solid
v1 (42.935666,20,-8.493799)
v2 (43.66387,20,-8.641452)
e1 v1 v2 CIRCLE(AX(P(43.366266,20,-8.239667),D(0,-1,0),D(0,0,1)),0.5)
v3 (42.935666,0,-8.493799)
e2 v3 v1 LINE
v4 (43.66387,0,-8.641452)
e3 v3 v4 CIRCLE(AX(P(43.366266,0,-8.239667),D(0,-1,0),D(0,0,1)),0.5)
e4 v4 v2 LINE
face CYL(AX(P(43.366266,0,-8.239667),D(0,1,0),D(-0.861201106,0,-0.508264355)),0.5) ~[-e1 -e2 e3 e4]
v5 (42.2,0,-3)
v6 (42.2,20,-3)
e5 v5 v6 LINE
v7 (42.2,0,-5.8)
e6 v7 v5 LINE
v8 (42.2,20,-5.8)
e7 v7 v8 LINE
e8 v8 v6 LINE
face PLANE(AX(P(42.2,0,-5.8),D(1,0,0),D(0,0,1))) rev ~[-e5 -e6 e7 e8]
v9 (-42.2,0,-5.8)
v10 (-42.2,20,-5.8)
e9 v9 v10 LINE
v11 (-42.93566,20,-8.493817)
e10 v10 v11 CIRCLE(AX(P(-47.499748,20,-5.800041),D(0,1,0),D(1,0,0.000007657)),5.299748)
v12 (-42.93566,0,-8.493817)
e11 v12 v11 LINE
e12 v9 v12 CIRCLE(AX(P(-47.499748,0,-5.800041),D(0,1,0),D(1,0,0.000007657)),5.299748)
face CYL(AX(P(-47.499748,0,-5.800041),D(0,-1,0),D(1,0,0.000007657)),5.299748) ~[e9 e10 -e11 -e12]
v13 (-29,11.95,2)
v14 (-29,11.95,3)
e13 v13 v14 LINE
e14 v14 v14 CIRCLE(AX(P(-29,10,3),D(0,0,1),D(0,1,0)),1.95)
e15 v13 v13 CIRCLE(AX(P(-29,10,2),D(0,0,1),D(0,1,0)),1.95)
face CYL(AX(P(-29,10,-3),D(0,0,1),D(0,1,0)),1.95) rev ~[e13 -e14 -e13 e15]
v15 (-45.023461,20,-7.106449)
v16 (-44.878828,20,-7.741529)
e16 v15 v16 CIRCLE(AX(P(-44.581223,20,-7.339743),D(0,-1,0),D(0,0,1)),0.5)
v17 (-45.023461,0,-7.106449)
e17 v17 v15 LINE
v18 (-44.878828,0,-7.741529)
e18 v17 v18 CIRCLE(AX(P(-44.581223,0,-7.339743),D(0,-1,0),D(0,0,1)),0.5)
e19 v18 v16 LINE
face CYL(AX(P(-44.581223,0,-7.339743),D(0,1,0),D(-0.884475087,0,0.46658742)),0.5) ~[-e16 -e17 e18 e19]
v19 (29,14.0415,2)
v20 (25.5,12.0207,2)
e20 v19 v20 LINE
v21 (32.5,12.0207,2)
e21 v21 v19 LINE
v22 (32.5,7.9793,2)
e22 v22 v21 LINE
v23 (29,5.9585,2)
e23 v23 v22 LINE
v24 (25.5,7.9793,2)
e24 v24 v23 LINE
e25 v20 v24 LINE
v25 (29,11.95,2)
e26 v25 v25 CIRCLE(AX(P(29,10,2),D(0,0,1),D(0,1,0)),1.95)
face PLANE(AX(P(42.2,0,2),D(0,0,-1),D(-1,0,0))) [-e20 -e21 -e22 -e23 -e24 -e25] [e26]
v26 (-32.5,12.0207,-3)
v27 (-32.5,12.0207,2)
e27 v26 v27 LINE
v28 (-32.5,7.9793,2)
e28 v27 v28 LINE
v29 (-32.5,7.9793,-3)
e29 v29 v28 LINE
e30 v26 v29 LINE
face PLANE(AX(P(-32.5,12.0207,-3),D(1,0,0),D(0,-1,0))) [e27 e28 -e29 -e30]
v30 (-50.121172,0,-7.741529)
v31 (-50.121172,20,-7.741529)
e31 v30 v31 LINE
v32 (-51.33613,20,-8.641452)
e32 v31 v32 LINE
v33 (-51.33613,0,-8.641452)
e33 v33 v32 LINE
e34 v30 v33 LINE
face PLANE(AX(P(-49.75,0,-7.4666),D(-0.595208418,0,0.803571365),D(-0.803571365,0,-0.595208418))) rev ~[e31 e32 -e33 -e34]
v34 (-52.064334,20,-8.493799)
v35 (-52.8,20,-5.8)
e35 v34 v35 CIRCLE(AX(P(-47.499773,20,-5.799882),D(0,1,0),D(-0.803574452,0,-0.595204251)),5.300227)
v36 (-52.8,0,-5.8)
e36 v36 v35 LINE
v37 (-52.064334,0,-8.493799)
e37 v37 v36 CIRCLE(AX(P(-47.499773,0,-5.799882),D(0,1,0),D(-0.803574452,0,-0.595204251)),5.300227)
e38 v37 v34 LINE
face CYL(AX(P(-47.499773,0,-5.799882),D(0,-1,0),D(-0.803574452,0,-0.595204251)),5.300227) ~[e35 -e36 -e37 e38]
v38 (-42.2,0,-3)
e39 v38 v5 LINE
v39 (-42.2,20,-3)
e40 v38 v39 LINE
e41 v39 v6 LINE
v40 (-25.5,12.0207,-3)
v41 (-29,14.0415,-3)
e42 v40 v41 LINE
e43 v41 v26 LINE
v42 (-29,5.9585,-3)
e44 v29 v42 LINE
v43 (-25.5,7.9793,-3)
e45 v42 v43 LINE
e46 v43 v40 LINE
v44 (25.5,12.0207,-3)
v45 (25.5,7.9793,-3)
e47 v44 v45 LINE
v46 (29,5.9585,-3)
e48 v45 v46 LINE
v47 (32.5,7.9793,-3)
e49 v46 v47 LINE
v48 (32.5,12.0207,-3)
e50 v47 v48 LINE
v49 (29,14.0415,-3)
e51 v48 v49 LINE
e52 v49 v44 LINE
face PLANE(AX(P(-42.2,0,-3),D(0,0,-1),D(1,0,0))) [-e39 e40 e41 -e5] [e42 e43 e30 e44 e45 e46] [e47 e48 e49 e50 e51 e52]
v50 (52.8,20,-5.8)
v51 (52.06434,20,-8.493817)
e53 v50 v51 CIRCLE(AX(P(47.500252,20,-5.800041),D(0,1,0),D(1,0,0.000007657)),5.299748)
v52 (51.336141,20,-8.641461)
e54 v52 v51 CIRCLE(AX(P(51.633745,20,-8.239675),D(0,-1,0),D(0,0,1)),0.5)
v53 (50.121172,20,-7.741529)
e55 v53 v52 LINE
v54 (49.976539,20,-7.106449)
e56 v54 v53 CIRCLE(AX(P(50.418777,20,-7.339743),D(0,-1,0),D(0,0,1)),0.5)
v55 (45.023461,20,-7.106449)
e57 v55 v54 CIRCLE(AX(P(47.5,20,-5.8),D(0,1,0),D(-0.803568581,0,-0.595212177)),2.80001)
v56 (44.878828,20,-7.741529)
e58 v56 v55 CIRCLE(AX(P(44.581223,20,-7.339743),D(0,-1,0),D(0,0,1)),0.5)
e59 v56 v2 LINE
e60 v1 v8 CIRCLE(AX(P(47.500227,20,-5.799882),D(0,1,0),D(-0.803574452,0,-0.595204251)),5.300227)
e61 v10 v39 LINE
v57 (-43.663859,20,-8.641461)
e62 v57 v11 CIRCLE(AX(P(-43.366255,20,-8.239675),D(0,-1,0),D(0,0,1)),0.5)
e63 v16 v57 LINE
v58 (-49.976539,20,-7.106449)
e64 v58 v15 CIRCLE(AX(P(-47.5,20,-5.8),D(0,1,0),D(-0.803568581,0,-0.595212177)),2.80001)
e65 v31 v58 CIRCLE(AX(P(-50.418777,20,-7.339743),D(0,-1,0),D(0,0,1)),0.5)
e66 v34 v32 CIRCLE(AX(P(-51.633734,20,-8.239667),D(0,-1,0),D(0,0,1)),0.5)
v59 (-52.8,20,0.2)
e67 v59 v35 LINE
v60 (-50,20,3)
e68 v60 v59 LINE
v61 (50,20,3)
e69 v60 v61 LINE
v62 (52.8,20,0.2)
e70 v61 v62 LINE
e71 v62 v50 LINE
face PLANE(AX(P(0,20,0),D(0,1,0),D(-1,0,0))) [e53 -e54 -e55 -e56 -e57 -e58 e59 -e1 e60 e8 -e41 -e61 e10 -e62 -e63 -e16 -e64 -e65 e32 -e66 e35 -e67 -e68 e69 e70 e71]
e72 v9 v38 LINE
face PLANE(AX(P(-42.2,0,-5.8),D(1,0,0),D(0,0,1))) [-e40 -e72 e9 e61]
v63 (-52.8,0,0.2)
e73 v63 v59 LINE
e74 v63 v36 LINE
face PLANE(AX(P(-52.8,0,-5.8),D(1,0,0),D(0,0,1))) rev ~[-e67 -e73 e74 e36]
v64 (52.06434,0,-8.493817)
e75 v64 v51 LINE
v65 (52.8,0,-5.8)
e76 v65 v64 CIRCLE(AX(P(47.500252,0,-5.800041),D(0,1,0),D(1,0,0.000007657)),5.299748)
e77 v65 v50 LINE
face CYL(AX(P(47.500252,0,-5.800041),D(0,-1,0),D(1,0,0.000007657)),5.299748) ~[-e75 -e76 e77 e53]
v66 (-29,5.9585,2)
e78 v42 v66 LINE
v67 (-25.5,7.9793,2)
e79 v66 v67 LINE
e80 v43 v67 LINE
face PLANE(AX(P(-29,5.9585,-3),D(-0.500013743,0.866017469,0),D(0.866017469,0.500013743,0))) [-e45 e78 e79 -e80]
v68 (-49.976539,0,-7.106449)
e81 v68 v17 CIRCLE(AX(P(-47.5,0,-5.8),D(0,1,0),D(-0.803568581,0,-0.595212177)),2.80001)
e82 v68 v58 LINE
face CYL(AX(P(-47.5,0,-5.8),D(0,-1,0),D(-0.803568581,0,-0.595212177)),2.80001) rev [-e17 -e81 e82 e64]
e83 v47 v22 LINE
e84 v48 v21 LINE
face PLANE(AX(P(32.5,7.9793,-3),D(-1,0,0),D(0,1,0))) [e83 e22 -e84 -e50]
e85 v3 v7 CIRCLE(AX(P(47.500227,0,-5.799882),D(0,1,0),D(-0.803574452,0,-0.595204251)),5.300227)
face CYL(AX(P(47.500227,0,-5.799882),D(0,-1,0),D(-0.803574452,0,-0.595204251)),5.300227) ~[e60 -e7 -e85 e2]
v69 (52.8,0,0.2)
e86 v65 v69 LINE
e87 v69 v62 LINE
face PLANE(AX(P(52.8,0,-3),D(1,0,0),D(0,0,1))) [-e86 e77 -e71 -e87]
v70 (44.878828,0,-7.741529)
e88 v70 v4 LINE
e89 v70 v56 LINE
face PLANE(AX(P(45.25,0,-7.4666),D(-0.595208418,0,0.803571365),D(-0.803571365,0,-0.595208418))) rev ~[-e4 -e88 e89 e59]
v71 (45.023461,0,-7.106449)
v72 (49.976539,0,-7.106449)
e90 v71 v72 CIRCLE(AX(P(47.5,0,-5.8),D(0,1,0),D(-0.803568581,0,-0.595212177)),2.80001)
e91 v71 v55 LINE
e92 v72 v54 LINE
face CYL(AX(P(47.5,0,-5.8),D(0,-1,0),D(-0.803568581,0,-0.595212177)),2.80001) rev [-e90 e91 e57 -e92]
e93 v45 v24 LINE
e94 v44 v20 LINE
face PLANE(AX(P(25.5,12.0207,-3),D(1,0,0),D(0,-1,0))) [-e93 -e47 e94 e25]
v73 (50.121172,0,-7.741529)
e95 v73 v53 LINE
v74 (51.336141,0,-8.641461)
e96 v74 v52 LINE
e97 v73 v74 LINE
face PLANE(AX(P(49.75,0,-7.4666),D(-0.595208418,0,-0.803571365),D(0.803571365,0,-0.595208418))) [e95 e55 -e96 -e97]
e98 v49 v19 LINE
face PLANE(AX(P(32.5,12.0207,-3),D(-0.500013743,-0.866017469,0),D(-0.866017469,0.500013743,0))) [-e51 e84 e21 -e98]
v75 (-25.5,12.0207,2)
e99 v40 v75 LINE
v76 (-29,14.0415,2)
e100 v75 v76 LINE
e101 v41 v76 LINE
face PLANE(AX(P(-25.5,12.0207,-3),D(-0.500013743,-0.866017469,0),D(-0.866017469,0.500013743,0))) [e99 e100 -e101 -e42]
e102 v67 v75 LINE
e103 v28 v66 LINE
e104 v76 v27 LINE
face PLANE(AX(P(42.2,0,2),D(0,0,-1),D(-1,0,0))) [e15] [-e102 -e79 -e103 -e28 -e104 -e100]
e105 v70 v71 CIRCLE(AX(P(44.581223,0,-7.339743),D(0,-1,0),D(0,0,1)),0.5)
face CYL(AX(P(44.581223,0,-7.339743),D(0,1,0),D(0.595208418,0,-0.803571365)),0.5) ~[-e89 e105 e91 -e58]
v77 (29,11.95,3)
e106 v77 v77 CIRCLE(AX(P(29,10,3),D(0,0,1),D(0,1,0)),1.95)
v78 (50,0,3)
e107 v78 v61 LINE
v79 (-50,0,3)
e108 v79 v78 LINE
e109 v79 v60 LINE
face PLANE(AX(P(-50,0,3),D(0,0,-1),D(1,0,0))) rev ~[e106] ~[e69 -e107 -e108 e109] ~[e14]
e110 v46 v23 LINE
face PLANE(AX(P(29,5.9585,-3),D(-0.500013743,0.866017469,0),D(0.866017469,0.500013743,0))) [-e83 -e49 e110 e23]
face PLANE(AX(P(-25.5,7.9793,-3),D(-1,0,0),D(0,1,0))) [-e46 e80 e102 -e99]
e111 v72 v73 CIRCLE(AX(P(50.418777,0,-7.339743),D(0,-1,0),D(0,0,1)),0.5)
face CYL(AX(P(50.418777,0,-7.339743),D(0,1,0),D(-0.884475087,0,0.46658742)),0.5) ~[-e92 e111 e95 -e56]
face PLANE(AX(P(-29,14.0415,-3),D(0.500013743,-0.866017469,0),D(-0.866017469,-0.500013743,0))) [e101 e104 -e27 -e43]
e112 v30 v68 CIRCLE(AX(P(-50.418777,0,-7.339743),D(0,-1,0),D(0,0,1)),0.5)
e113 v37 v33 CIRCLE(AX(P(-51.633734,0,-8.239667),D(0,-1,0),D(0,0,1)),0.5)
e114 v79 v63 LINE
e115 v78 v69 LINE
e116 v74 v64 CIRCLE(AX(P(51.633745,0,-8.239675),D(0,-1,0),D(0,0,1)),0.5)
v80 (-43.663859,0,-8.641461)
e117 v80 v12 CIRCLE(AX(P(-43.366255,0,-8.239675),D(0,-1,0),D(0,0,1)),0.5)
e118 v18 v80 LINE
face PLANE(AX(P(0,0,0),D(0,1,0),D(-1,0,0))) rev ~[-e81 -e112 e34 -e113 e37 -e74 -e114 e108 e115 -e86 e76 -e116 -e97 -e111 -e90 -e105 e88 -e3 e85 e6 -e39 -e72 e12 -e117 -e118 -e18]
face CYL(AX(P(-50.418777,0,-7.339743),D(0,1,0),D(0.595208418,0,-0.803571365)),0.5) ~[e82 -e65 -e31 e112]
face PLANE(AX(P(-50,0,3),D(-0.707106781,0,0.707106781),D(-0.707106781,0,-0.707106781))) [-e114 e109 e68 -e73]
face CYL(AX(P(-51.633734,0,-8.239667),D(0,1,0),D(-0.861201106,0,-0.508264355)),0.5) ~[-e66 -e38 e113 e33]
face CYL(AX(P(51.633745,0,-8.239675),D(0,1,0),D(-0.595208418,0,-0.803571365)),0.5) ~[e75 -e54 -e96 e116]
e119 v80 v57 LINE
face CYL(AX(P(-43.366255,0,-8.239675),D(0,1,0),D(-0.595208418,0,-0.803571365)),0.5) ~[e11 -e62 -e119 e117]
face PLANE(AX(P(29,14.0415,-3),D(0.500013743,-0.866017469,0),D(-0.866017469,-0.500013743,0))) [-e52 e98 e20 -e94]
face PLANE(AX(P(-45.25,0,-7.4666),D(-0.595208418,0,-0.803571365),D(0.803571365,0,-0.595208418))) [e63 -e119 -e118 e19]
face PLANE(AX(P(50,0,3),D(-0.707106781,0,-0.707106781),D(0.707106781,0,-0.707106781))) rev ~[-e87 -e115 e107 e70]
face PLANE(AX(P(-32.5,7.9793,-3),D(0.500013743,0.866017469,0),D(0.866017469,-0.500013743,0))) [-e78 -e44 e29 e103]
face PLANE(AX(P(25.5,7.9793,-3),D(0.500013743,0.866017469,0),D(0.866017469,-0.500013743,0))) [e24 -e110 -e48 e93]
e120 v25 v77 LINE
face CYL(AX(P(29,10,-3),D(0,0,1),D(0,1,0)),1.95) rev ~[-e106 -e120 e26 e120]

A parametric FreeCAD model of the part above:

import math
import FreeCAD as App
import Part
import Sketcher
Q = App.Units.Quantity


def edges_at(feature, points):
    """Names of the edges that pass closest to the given points."""
    edges = feature.Shape.Edges
    near = lambda p: min(range(len(edges)), key=lambda i: edges[i].distToShape(Part.Vertex(*p))[0])
    return sorted({f"Edge{near(p) + 1}" for p in points})

doc = App.newDocument("Part")
body = doc.addObject("PartDesign::Body", "Body")

sketch1 = body.newObject("Sketcher::SketchObject", "Sketch")
sketch1.AttachmentSupport = (doc.getObject("XZ_Plane"), [""])
sketch1.MapMode = "FlatFace"
sketch1.addGeometry([
    Part.LineSegment(App.Vector(52.8, 0.2, 0), App.Vector(52.8, -5.8, 0)),
    Part.ArcOfCircle(Part.Circle(App.Vector(47.5, -5.8, 0), App.Vector(0, 0, 1), 5.3), math.radians(-37), math.radians(0)),
    Part.LineSegment(App.Vector(51.8, -9, 0), App.Vector(49.8, -7.5, 0)),
    Part.ArcOfCircle(Part.Circle(App.Vector(47.5, -5.8, 0), App.Vector(0, 0, 1), 2.8), math.radians(-37), math.radians(217)),
    Part.LineSegment(App.Vector(45.2, -7.5, 0), App.Vector(43.2, -9, 0)),
    Part.ArcOfCircle(Part.Circle(App.Vector(47.5, -5.8, 0), App.Vector(0, 0, 1), 5.3), math.radians(180), math.radians(217)),
    Part.LineSegment(App.Vector(42.2, -5.8, 0), App.Vector(42.2, -3, 0)),
    Part.LineSegment(App.Vector(42.2, -3, 0), App.Vector(-42.2, -3, 0)),
    Part.LineSegment(App.Vector(-42.2, -3, 0), App.Vector(-42.2, -5.8, 0)),
    Part.ArcOfCircle(Part.Circle(App.Vector(-47.5, -5.8, 0), App.Vector(0, 0, 1), 5.3), math.radians(-37), math.radians(0)),
    Part.LineSegment(App.Vector(-43.2, -9, 0), App.Vector(-45.2, -7.5, 0)),
    Part.ArcOfCircle(Part.Circle(App.Vector(-47.5, -5.8, 0), App.Vector(0, 0, 1), 2.8), math.radians(-37), math.radians(217)),
    Part.LineSegment(App.Vector(-49.8, -7.5, 0), App.Vector(-51.8, -9, 0)),
    Part.ArcOfCircle(Part.Circle(App.Vector(-47.5, -5.8, 0), App.Vector(0, 0, 1), 5.3), math.radians(180), math.radians(217)),
    Part.LineSegment(App.Vector(-52.8, -5.8, 0), App.Vector(-52.8, 0.2, 0)),
    Part.LineSegment(App.Vector(-52.8, 0.2, 0), App.Vector(-50, 3, 0)),
    Part.LineSegment(App.Vector(-50, 3, 0), App.Vector(50, 3, 0)),
    Part.LineSegment(App.Vector(50, 3, 0), App.Vector(52.8, 0.2, 0)),
], False)
sketch1.addConstraint([
    Sketcher.Constraint("Tangent", 0, 2, 1, 2),
    Sketcher.Constraint("Coincident", 1, 1, 2, 1),
    Sketcher.Constraint("Coincident", 2, 2, 3, 1),
    Sketcher.Constraint("Coincident", 3, 2, 4, 1),
    Sketcher.Constraint("Coincident", 4, 2, 5, 2),
    Sketcher.Constraint("Tangent", 5, 1, 6, 1),
    Sketcher.Constraint("Coincident", 6, 2, 7, 1),
    Sketcher.Constraint("Coincident", 7, 2, 8, 1),
    Sketcher.Constraint("Tangent", 8, 2, 9, 2),
    Sketcher.Constraint("Coincident", 9, 1, 10, 1),
    Sketcher.Constraint("Coincident", 10, 2, 11, 1),
    Sketcher.Constraint("Coincident", 11, 2, 12, 1),
    Sketcher.Constraint("Coincident", 12, 2, 13, 2),
    Sketcher.Constraint("Tangent", 13, 1, 14, 1),
    Sketcher.Constraint("Coincident", 14, 2, 15, 1),
    Sketcher.Constraint("Coincident", 15, 2, 16, 1),
    Sketcher.Constraint("Coincident", 16, 2, 17, 1),
    Sketcher.Constraint("Coincident", 17, 2, 0, 1),
    Sketcher.Constraint("Vertical", 0),
    Sketcher.Constraint("Vertical", 6),
    Sketcher.Constraint("Horizontal", 7),
    Sketcher.Constraint("Vertical", 8),
    Sketcher.Constraint("Vertical", 14),
    Sketcher.Constraint("Horizontal", 16),
    Sketcher.Constraint("Coincident", 3, 3, 1, 3),
    Sketcher.Constraint("Coincident", 5, 3, 1, 3),
    Sketcher.Constraint("Coincident", 11, 3, 9, 3),
    Sketcher.Constraint("Coincident", 13, 3, 9, 3),
    Sketcher.Constraint("Equal", 1, 5),
    Sketcher.Constraint("Equal", 5, 9),
    Sketcher.Constraint("Equal", 3, 11),
    Sketcher.Constraint("Equal", 9, 13),
    Sketcher.Constraint("Symmetric", 1, 3, 9, 3, -2),
    Sketcher.Constraint("Parallel", 2, 10),
    Sketcher.Constraint("Parallel", 4, 12),
    Sketcher.Constraint("Perpendicular", 15, 17),
    Sketcher.Constraint("Horizontal", 2, 2, 3, 2),
    Sketcher.Constraint("Horizontal", 1, 1, 4, 2),
    Sketcher.Constraint("Horizontal", 4, 2, 9, 1),
    Sketcher.Constraint("Horizontal", 10, 2, 11, 2),
    Sketcher.Constraint("Horizontal", 14, 2, 17, 2),
    Sketcher.Constraint("Equal", 15, 17),
    Sketcher.Constraint("Radius", 3, 2.8),
    Sketcher.Constraint("DistanceX", 16, 1, 16, 2, 100.0),
    Sketcher.Constraint("DistanceY", 0, 2, 0, 1, 6.0),
    Sketcher.Constraint("DistanceX", 9, 3, 1, 3, 95.0),
    Sketcher.Constraint("DistanceY", 6, 2, 16, 2, 6.0),
    Sketcher.Constraint("Distance", 2, 2.5),
    Sketcher.Constraint("DistanceX", 3, 2, 2, 2, 4.5),
    Sketcher.Constraint("DistanceY", 6, 2, -1, 1, 3.0),
    Sketcher.Constraint("DistanceX", -1, 1, 1, 1, 51.759),
])
pad1 = body.newObject("PartDesign::Pad", "Pad")
pad1.Profile = sketch1
pad1.Length = 20
pad1.Reversed = True
doc.recompute()

fillet = body.newObject("PartDesign::Fillet", "Fillet")
fillet.Base = (pad1, edges_at(pad1, [
    (45.25, 10, -7.467),
    (43.241, 10, -8.955),
    (51.759, 10, -8.955),
    (49.75, 10, -7.467),
    (-51.759, 10, -8.955),
    (-49.75, 10, -7.467),
    (-43.241, 10, -8.955),
    (-45.25, 10, -7.467),
]))
fillet.Radius = 0.5

sketch2 = body.newObject("Sketcher::SketchObject", "Sketch001")
sketch2.AttachmentSupport = (doc.getObject("XY_Plane"), [""])
sketch2.MapMode = "FlatFace"
sketch2.AttachmentOffset = App.Placement(App.Vector(0, 0, -3), App.Rotation())
sketch2.addGeometry([
    Part.LineSegment(App.Vector(29, 14, 0), App.Vector(32.5, 12, 0)),
    Part.LineSegment(App.Vector(32.5, 12, 0), App.Vector(32.5, 8, 0)),
    Part.LineSegment(App.Vector(32.5, 8, 0), App.Vector(29, 6, 0)),
    Part.LineSegment(App.Vector(29, 6, 0), App.Vector(25.5, 8, 0)),
    Part.LineSegment(App.Vector(25.5, 8, 0), App.Vector(25.5, 12, 0)),
    Part.LineSegment(App.Vector(25.5, 12, 0), App.Vector(29, 14, 0)),
    Part.LineSegment(App.Vector(-32.5, 8, 0), App.Vector(-32.5, 12, 0)),
    Part.LineSegment(App.Vector(-32.5, 12, 0), App.Vector(-29, 14, 0)),
    Part.LineSegment(App.Vector(-29, 14, 0), App.Vector(-25.5, 12, 0)),
    Part.LineSegment(App.Vector(-25.5, 12, 0), App.Vector(-25.5, 8, 0)),
    Part.LineSegment(App.Vector(-25.5, 8, 0), App.Vector(-29, 6, 0)),
    Part.LineSegment(App.Vector(-29, 6, 0), App.Vector(-32.5, 8, 0)),
], False)
sketch2.addConstraint([
    Sketcher.Constraint("Coincident", 0, 2, 1, 1),
    Sketcher.Constraint("Coincident", 1, 2, 2, 1),
    Sketcher.Constraint("Coincident", 2, 2, 3, 1),
    Sketcher.Constraint("Coincident", 3, 2, 4, 1),
    Sketcher.Constraint("Coincident", 4, 2, 5, 1),
    Sketcher.Constraint("Coincident", 5, 2, 0, 1),
    Sketcher.Constraint("Coincident", 6, 2, 7, 1),
    Sketcher.Constraint("Coincident", 7, 2, 8, 1),
    Sketcher.Constraint("Coincident", 8, 2, 9, 1),
    Sketcher.Constraint("Coincident", 9, 2, 10, 1),
    Sketcher.Constraint("Coincident", 10, 2, 11, 1),
    Sketcher.Constraint("Coincident", 11, 2, 6, 1),
    Sketcher.Constraint("Vertical", 1),
    Sketcher.Constraint("Vertical", 4),
    Sketcher.Constraint("Vertical", 6),
    Sketcher.Constraint("Vertical", 9),
    Sketcher.Constraint("Symmetric", 0, 2, 6, 2, -2),
    Sketcher.Constraint("Symmetric", 5, 2, 7, 2, -2),
    Sketcher.Constraint("Symmetric", 4, 2, 8, 2, -2),
    Sketcher.Constraint("Symmetric", 2, 2, 10, 2, -2),
    Sketcher.Constraint("Parallel", 0, 3),
    Sketcher.Constraint("Parallel", 2, 5),
    Sketcher.Constraint("Parallel", 5, 7),
    Sketcher.Constraint("Parallel", 7, 10),
    Sketcher.Constraint("Parallel", 8, 11),
    Sketcher.Constraint("Horizontal", 1, 2, 3, 2),
    Sketcher.Constraint("Horizontal", 0, 2, 4, 2),
    Sketcher.Constraint("DistanceX", 3, 2, 1, 2, 7.0),
    Sketcher.Constraint("DistanceX", 6, 2, 4, 2, 58.0),
    Sketcher.Constraint("Angle", 0, Q("-30.001 deg")),
    Sketcher.Constraint("DistanceY", 1, 2, 1, 1, 4.0414),
    Sketcher.Constraint("DistanceY", -1, 1, 0, 2, 12.0207),
])
pocket1 = body.newObject("PartDesign::Pocket", "Pocket")
pocket1.Profile = sketch2
pocket1.Length = 5
pocket1.Reversed = True

sketch3 = body.newObject("Sketcher::SketchObject", "Sketch002")
sketch3.AttachmentSupport = (doc.getObject("XY_Plane"), [""])
sketch3.MapMode = "FlatFace"
sketch3.AttachmentOffset = App.Placement(App.Vector(0, 0, -3), App.Rotation())
sketch3.addGeometry([
    Part.Circle(App.Vector(29, 10, 0), App.Vector(0, 0, 1), 1.9),
    Part.Circle(App.Vector(-29, 10, 0), App.Vector(0, 0, 1), 1.9),
], False)
sketch3.addConstraint([
    Sketcher.Constraint("Equal", 0, 1),
    Sketcher.Constraint("Symmetric", 0, 3, 1, 3, -2),
    Sketcher.Constraint("Diameter", 0, 3.9),
    Sketcher.Constraint("DistanceX", -1, 1, 0, 3, 29.0),
    Sketcher.Constraint("DistanceY", -1, 1, 0, 3, 10.0),
])
doc.recompute()
hole = body.newObject("PartDesign::Hole", "Hole")
hole.Profile = sketch3
hole.ThreadType = "None"
hole.Diameter = 3.9
hole.DepthType = "ThroughAll"
hole.Reversed = True

doc.recompute()
